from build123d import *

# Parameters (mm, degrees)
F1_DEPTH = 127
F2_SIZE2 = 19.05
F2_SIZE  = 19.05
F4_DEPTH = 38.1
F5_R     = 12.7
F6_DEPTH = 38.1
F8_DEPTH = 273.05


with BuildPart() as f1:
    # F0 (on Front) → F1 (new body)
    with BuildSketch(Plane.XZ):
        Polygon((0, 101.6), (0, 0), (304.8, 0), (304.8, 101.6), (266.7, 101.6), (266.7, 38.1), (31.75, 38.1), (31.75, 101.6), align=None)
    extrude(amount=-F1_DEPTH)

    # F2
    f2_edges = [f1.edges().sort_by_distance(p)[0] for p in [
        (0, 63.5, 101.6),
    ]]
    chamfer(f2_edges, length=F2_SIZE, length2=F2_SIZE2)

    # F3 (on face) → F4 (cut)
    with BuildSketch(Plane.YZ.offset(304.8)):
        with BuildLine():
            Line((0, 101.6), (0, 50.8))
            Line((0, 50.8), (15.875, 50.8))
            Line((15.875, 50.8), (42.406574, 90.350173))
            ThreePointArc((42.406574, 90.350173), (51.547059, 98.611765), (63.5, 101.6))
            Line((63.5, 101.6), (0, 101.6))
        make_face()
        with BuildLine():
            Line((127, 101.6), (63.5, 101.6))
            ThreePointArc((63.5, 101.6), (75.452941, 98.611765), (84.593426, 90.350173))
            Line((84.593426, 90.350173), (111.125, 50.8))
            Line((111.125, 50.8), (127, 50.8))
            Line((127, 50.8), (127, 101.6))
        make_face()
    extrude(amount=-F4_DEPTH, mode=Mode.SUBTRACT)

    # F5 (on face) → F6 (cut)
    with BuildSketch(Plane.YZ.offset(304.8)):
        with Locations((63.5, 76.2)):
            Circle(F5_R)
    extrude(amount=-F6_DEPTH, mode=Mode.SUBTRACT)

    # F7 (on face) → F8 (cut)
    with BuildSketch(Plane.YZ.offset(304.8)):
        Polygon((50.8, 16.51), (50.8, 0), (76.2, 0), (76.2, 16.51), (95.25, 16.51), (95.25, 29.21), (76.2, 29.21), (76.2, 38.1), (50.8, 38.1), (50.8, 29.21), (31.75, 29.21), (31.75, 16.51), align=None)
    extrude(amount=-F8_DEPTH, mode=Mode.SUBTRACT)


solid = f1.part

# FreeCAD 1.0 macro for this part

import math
import FreeCAD as App
import Part
import Sketcher
Q = App.Units.Quantity


def edges_at(feature, points):
    """Names of the edges that pass closest to the given points."""
    edges = feature.Shape.Edges
    near = lambda p: min(range(len(edges)), key=lambda i: edges[i].distToShape(Part.Vertex(*p))[0])
    return sorted({f"Edge{near(p) + 1}" for p in points})


def add_polygon(sketch, points):
    """Adds a closed chain of lines whose ends are joined by coincident constraints."""
    first, n = sketch.GeometryCount, len(points)
    for a, b in zip(points, points[1:] + points[:1]):
        sketch.addGeometry(Part.LineSegment(App.Vector(*a, 0), App.Vector(*b, 0)), False)
    for i in range(n):
        sketch.addConstraint(Sketcher.Constraint("Coincident", first + i, 2, first + (i + 1) % n, 1))

doc = App.newDocument("Part")
body = doc.addObject("PartDesign::Body", "Body")

sketch1 = body.newObject("Sketcher::SketchObject", "Sketch")
sketch1.AttachmentSupport = (doc.getObject("XZ_Plane"), [""])
sketch1.MapMode = "FlatFace"
add_polygon(sketch1, [(0, 101.6), (0, 0), (304.8, 0), (304.8, 101.6), (266.7, 101.6), (266.7, 38.1), (31.75, 38.1), (31.75, 101.6)])
sketch1.addConstraint(Sketcher.Constraint("Vertical", 0))
sketch1.addConstraint(Sketcher.Constraint("Horizontal", 1))
sketch1.addConstraint(Sketcher.Constraint("Vertical", 2))
sketch1.addConstraint(Sketcher.Constraint("Horizontal", 3))
sketch1.addConstraint(Sketcher.Constraint("Vertical", 4))
sketch1.addConstraint(Sketcher.Constraint("Horizontal", 5))
sketch1.addConstraint(Sketcher.Constraint("Vertical", 6))
sketch1.addConstraint(Sketcher.Constraint("Horizontal", 7))
sketch1.addConstraint(Sketcher.Constraint("Coincident", 0, 2, -1, 1))
sketch1.addConstraint(Sketcher.Constraint("Horizontal", 3, 2, 6, 2))
sketch1.addConstraint(Sketcher.Constraint("DistanceX", 1, 1, 1, 2, Q("12 in")))
sketch1.addConstraint(Sketcher.Constraint("DistanceY", 0, 2, 0, 1, Q("4 in")))
sketch1.addConstraint(Sketcher.Constraint("DistanceX", 3, 2, 3, 1, Q("1.5 in")))
sketch1.addConstraint(Sketcher.Constraint("DistanceY", 4, 2, 4, 1, Q("2.5 in")))
sketch1.addConstraint(Sketcher.Constraint("DistanceX", 5, 2, 5, 1, Q("9.25 in")))
pad1 = body.newObject("PartDesign::Pad", "Pad")
pad1.Profile = sketch1
pad1.Length = Q("5 in")
pad1.Reversed = True
doc.recompute()

chamfer = body.newObject("PartDesign::Chamfer", "Chamfer")
chamfer.Base = (pad1, edges_at(pad1, [(0, 63.5, 101.6)]))
chamfer.ChamferType = "Two distances"
chamfer.Size = Q("0.75 in")
chamfer.Size2 = Q("0.75 in")

sketch2 = body.newObject("Sketcher::SketchObject", "Sketch001")
sketch2.AttachmentSupport = (doc.getObject("YZ_Plane"), [""])
sketch2.MapMode = "FlatFace"
sketch2.AttachmentOffset = App.Placement(App.Vector(0, 0, 12 * 25.4), App.Rotation())
sketch2.addGeometry(Part.LineSegment(App.Vector(0, 101.6, 0), App.Vector(0, 50.8, 0)), False)
sketch2.addGeometry(Part.LineSegment(App.Vector(0, 50.8, 0), App.Vector(15.875, 50.8, 0)), False)
sketch2.addGeometry(Part.LineSegment(App.Vector(15.875, 50.8, 0), App.Vector(42.406574, 90.350173, 0)), False)
sketch2.addGeometry(Part.ArcOfCircle(Part.Circle(App.Vector(63.5, 76.2, 0), App.Vector(0, 0, 1), 25.4), math.radians(89.999999), math.radians(146.144974)), False)
sketch2.addGeometry(Part.LineSegment(App.Vector(63.5, 101.6, 0), App.Vector(0, 101.6, 0)), False)
sketch2.addGeometry(Part.LineSegment(App.Vector(127, 101.6, 0), App.Vector(63.5, 101.6, 0)), False)
sketch2.addGeometry(Part.ArcOfCircle(Part.Circle(App.Vector(63.5, 76.2, 0), App.Vector(0, 0, 1), 25.4), math.radians(33.855026), math.radians(90.000001)), False)
sketch2.addGeometry(Part.LineSegment(App.Vector(84.593426, 90.350173, 0), App.Vector(111.125, 50.8, 0)), False)
sketch2.addGeometry(Part.LineSegment(App.Vector(111.125, 50.8, 0), App.Vector(127, 50.8, 0)), False)
sketch2.addGeometry(Part.LineSegment(App.Vector(127, 50.8, 0), App.Vector(127, 101.6, 0)), False)
sketch2.addConstraint(Sketcher.Constraint("Coincident", 0, 2, 1, 1))
sketch2.addConstraint(Sketcher.Constraint("Coincident", 1, 2, 2, 1))
sketch2.addConstraint(Sketcher.Constraint("Tangent", 2, 2, 3, 2))
sketch2.addConstraint(Sketcher.Constraint("Tangent", 3, 1, 4, 1))
sketch2.addConstraint(Sketcher.Constraint("Coincident", 4, 2, 0, 1))
sketch2.addConstraint(Sketcher.Constraint("Tangent", 5, 2, 6, 2))
sketch2.addConstraint(Sketcher.Constraint("Tangent", 6, 1, 7, 1))
sketch2.addConstraint(Sketcher.Constraint("Coincident", 7, 2, 8, 1))
sketch2.addConstraint(Sketcher.Constraint("Coincident", 8, 2, 9, 1))
sketch2.addConstraint(Sketcher.Constraint("Coincident", 9, 2, 5, 1))
sketch2.addConstraint(Sketcher.Constraint("Vertical", 0))
sketch2.addConstraint(Sketcher.Constraint("Horizontal", 1))
sketch2.addConstraint(Sketcher.Constraint("Horizontal", 4))
sketch2.addConstraint(Sketcher.Constraint("Horizontal", 5))
sketch2.addConstraint(Sketcher.Constraint("Horizontal", 8))
sketch2.addConstraint(Sketcher.Constraint("Vertical", 9))
sketch2.addConstraint(Sketcher.Constraint("Coincident", 6, 3, 3, 3))
sketch2.addConstraint(Sketcher.Constraint("Equal", 3, 6))
sketch2.addConstraint(Sketcher.Constraint("PointOnObject", 0, 2, -2))
sketch2.addConstraint(Sketcher.Constraint("Horizontal", 2, 2, 6, 1))
sketch2.addConstraint(Sketcher.Constraint("Horizontal", 1, 2, 7, 2))
sketch2.addConstraint(Sketcher.Constraint("Equal", 4, 5))
sketch2.addConstraint(Sketcher.Constraint("Radius", 3, Q("1 in")))
sketch2.addConstraint(Sketcher.Constraint("DistanceY", 0, 2, 0, 1, Q("2 in")))
sketch2.addConstraint(Sketcher.Constraint("DistanceX", 4, 2, 4, 1, Q("2.5 in")))
sketch2.addConstraint(Sketcher.Constraint("DistanceY", -1, 1, 3, 3, Q("3 in")))
sketch2.addConstraint(Sketcher.Constraint("DistanceX", 1, 1, 1, 2, Q("0.625 in")))
pocket1 = body.newObject("PartDesign::Pocket", "Pocket")
pocket1.Profile = sketch2
pocket1.Length = Q("1.5 in")

sketch3 = body.newObject("Sketcher::SketchObject", "Sketch002")
sketch3.AttachmentSupport = (doc.getObject("YZ_Plane"), [""])
sketch3.MapMode = "FlatFace"
sketch3.AttachmentOffset = App.Placement(App.Vector(0, 0, 12 * 25.4), App.Rotation())
sketch3.addGeometry(Part.Circle(App.Vector(63.5, 76.2, 0), App.Vector(0, 0, 1), 12.7), False)
sketch3.addConstraint(Sketcher.Constraint("Diameter", 0, Q("1 in")))
sketch3.addConstraint(Sketcher.Constraint("DistanceY", -1, 1, 0, 3, Q("3 in")))
sketch3.addConstraint(Sketcher.Constraint("DistanceX", -1, 1, 0, 3, Q("2.5 in")))
pocket2 = body.newObject("PartDesign::Pocket", "Pocket001")
pocket2.Profile = sketch3
pocket2.Length = Q("1.5 in")

sketch4 = body.newObject("Sketcher::SketchObject", "Sketch003")
sketch4.AttachmentSupport = (doc.getObject("YZ_Plane"), [""])
sketch4.MapMode = "FlatFace"
sketch4.AttachmentOffset = App.Placement(App.Vector(0, 0, 12 * 25.4), App.Rotation())
add_polygon(sketch4, [(50.8, 16.51), (50.8, 0), (76.2, 0), (76.2, 16.51), (95.25, 16.51), (95.25, 29.21), (76.2, 29.21), (76.2, 38.1), (50.8, 38.1), (50.8, 29.21), (31.75, 29.21), (31.75, 16.51)])
sketch4.addConstraint(Sketcher.Constraint("Vertical", 0))
sketch4.addConstraint(Sketcher.Constraint("Horizontal", 1))
sketch4.addConstraint(Sketcher.Constraint("Vertical", 2))
sketch4.addConstraint(Sketcher.Constraint("Horizontal", 3))
sketch4.addConstraint(Sketcher.Constraint("Vertical", 4))
sketch4.addConstraint(Sketcher.Constraint("Horizontal", 5))
sketch4.addConstraint(Sketcher.Constraint("Vertical", 6))
sketch4.addConstraint(Sketcher.Constraint("Horizontal", 7))
sketch4.addConstraint(Sketcher.Constraint("Vertical", 8))
sketch4.addConstraint(Sketcher.Constraint("Horizontal", 9))
sketch4.addConstraint(Sketcher.Constraint("Vertical", 10))
sketch4.addConstraint(Sketcher.Constraint("Horizontal", 11))
sketch4.addConstraint(Sketcher.Constraint("PointOnObject", 0, 2, -1))
sketch4.addConstraint(Sketcher.Constraint("Horizontal", 5, 2, 8, 2))
sketch4.addConstraint(Sketcher.Constraint("Horizontal", 3, 2, 10, 2))
sketch4.addConstraint(Sketcher.Constraint("Vertical", 2, 2, 5, 2))
sketch4.addConstraint(Sketcher.Constraint("Vertical", 0, 2, 7, 2))
sketch4.addConstraint(Sketcher.Constraint("Equal", 5, 9))
sketch4.addConstraint(Sketcher.Constraint("DistanceX", 1, 1, 1, 2, Q("1 in")))
sketch4.addConstraint(Sketcher.Constraint("DistanceY", 4, 1, 4, 2, Q("0.5 in")))
sketch4.addConstraint(Sketcher.Constraint("DistanceX", -1, 1, 0, 2, Q("2 in")))
sketch4.addConstraint(Sketcher.Constraint("DistanceX", 3, 1, 3, 2, Q("0.75 in")))
sketch4.addConstraint(Sketcher.Constraint("DistanceY", 0, 2, 0, 1, Q("0.65 in")))
sketch4.addConstraint(Sketcher.Constraint("DistanceY", 6, 1, 6, 2, Q("0.35 in")))
pocket3 = body.newObject("PartDesign::Pocket", "Pocket002")
pocket3.Profile = sketch4
pocket3.Length = Q("10.75 in")

doc.recompute()
